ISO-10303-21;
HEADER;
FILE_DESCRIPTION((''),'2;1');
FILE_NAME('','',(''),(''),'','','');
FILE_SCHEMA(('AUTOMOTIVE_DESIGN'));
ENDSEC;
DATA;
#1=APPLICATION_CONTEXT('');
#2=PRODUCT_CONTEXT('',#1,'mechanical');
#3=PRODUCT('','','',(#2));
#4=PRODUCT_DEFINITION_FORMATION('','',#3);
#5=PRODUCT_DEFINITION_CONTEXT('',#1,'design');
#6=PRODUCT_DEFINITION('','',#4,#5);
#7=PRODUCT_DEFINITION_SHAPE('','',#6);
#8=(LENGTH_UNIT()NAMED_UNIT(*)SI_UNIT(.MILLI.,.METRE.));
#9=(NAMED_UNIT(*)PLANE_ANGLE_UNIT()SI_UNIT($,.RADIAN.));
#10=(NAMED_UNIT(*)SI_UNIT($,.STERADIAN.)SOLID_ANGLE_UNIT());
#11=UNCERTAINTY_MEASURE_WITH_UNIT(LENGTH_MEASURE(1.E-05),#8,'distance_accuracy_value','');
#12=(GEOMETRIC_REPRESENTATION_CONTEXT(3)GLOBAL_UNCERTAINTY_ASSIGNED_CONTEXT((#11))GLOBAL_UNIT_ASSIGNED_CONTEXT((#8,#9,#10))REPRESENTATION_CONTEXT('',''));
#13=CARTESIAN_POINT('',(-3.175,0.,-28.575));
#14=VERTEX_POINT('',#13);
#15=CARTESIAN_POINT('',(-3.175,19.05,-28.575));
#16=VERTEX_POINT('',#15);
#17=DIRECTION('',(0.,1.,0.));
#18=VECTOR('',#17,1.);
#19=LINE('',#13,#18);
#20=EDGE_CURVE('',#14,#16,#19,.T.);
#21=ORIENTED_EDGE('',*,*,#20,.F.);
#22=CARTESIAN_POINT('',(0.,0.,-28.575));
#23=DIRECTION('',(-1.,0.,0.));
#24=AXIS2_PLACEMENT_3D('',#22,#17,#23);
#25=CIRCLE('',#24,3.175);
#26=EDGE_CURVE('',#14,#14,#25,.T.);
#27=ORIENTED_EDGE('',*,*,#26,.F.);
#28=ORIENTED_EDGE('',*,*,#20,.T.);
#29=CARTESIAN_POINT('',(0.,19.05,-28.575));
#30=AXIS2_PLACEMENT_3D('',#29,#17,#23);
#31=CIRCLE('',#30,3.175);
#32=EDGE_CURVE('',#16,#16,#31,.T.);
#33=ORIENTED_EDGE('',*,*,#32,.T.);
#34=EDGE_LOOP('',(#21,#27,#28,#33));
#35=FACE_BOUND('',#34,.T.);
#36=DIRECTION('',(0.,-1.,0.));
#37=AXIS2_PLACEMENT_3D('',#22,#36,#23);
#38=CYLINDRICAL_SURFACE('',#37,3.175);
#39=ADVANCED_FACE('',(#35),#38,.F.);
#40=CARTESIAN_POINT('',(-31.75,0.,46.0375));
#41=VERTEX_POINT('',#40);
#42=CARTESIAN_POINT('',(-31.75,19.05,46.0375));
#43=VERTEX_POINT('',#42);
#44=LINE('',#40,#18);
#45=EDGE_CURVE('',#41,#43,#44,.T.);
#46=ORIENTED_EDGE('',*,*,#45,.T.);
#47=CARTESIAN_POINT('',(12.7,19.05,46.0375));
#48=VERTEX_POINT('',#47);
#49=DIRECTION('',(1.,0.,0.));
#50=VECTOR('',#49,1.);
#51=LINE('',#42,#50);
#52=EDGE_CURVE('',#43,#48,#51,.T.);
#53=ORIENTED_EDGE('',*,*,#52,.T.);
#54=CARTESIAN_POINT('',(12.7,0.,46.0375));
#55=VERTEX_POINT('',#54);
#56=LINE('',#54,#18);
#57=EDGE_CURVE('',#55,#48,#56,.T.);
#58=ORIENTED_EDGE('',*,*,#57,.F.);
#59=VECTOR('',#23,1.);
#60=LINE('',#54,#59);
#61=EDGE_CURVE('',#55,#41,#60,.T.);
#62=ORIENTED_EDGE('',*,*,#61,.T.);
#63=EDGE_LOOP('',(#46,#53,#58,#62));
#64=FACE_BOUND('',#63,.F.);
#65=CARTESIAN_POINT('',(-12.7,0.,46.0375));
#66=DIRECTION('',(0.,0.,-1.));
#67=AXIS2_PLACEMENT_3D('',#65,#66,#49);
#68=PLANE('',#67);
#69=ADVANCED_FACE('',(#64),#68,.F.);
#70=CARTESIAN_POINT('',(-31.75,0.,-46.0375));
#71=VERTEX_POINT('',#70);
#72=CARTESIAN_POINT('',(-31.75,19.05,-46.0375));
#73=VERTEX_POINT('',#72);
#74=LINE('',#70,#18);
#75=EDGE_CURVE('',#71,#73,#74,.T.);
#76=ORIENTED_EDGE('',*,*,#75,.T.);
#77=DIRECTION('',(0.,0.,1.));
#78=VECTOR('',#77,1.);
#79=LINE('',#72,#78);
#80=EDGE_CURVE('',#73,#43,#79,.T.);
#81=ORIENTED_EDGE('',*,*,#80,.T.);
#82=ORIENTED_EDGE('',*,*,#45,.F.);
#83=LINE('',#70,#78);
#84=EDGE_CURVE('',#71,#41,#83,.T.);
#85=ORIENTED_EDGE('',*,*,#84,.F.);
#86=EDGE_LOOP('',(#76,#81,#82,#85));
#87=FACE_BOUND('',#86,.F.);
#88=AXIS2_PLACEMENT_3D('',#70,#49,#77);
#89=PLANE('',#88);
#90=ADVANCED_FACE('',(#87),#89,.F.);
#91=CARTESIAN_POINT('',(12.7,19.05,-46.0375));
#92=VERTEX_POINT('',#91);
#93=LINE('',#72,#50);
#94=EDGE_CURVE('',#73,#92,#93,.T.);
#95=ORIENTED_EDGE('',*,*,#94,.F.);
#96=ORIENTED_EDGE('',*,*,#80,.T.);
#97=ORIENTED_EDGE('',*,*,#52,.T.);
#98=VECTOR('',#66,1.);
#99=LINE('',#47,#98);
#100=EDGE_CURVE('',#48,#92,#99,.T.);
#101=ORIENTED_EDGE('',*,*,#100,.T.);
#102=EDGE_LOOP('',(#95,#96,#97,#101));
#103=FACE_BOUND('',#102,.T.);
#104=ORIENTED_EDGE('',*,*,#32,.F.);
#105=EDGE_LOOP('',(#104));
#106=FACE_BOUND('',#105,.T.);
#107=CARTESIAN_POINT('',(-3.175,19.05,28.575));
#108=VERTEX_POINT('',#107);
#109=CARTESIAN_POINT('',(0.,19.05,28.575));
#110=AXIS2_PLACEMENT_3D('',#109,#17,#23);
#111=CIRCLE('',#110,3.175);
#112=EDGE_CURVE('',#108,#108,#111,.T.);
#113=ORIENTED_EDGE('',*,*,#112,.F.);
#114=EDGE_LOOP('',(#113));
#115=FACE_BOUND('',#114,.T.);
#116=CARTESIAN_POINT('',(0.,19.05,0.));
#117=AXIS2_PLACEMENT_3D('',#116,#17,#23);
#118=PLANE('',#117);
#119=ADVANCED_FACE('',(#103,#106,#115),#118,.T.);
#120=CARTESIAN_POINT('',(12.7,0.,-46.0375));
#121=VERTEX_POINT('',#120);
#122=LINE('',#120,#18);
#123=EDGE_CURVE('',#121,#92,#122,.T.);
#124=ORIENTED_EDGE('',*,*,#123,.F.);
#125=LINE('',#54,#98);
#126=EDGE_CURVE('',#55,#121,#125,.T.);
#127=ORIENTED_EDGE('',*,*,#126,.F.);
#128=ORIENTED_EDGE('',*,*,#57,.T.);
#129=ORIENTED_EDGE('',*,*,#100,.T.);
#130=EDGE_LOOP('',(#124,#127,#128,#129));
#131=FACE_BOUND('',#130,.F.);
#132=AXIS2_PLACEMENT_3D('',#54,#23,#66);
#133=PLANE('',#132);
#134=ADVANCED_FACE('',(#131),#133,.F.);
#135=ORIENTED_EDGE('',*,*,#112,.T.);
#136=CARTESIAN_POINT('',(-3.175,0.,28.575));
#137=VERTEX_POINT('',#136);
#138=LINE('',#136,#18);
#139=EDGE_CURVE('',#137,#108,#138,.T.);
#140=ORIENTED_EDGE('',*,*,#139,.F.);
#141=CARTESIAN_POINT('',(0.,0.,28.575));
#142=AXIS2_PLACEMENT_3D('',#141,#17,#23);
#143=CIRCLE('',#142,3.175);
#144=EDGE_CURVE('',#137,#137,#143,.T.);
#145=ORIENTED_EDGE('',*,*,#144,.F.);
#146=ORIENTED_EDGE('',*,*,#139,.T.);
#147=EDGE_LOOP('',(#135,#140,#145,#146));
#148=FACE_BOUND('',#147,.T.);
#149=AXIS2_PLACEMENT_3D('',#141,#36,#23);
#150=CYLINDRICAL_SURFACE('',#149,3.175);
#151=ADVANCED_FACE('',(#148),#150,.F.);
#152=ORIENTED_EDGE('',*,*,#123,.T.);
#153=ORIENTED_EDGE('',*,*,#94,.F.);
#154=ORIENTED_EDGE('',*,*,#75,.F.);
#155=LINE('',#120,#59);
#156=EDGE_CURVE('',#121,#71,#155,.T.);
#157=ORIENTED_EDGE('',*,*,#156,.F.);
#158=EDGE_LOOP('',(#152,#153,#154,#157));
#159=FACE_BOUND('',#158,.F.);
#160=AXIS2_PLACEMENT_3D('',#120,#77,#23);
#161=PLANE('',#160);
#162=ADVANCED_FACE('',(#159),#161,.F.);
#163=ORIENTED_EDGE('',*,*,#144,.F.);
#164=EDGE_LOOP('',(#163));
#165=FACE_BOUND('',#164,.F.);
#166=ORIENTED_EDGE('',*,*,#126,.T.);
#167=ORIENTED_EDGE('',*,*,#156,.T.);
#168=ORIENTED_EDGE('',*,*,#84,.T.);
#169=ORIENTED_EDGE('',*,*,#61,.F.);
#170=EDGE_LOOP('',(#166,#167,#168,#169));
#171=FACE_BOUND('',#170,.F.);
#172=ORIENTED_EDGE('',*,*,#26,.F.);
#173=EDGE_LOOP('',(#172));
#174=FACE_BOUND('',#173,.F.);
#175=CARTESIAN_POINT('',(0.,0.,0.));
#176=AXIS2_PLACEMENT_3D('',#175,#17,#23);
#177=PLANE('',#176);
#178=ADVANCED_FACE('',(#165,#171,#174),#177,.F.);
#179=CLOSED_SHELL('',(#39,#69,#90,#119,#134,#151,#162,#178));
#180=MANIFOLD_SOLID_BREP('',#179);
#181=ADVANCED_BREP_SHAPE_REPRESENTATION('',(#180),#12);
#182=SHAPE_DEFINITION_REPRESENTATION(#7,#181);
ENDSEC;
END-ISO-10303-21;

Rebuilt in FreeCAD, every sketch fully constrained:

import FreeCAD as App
import Part
import Sketcher

V = App.Vector
Q = App.Units.Quantity

doc = App.newDocument("Part")
params = doc.addObject("Spreadsheet::Sheet", "Params")
for row, (alias, value) in enumerate([
    ("sketch1_diameter", "0.25 in"),
    ("sketch1_height", "3.625 in"),
    ("sketch1_width", "1.75 in"),
    ("pad1_length", "0.75 in"),
], start=1):
    params.set(f"A{row}", alias)
    params.set(f"B{row}", "=" + value)
    params.setAlias(f"B{row}", alias)

body = doc.addObject("PartDesign::Body", "Body")

# Sketch on XZ plane
sketch1 = body.newObject("Sketcher::SketchObject", "Sketch")
sketch1.AttachmentSupport = (doc.getObject("XZ_Plane"), [""])
sketch1.MapMode = "FlatFace"
sketch1.addGeometry(Part.LineSegment(V(12.7, -46.0375, 0), V(-31.75, -46.0375, 0)), False)
sketch1.addGeometry(Part.LineSegment(V(-31.75, -46.0375, 0), V(-31.75, 46.0375, 0)), False)
sketch1.addGeometry(Part.LineSegment(V(-31.75, 46.0375, 0), V(12.7, 46.0375, 0)), False)
sketch1.addGeometry(Part.LineSegment(V(12.7, 46.0375, 0), V(12.7, -46.0375, 0)), False)
sketch1.addGeometry(Part.Circle(V(0, -28.575, 0), V(0, 0, 1), 3.175), False)
sketch1.addGeometry(Part.Circle(V(0, 28.575, 0), V(0, 0, 1), 3.175), False)
sketch1.addConstraint(Sketcher.Constraint("Coincident", 0, 2, 1, 1))
sketch1.addConstraint(Sketcher.Constraint("Coincident", 1, 2, 2, 1))
sketch1.addConstraint(Sketcher.Constraint("Coincident", 2, 2, 3, 1))
sketch1.addConstraint(Sketcher.Constraint("Coincident", 3, 2, 0, 1))
sketch1.addConstraint(Sketcher.Constraint("Horizontal", 0))
sketch1.addConstraint(Sketcher.Constraint("Vertical", 1))
sketch1.addConstraint(Sketcher.Constraint("Horizontal", 2))
sketch1.addConstraint(Sketcher.Constraint("Vertical", 3))
sketch1.addConstraint(Sketcher.Constraint("Equal", 4, 5))
sketch1.addConstraint(Sketcher.Constraint("Symmetric", 4, 3, 5, 3, -1, 1))
sketch1.addConstraint(Sketcher.Constraint("PointOnObject", 4, 3, -2))
sketch1.addConstraint(Sketcher.Constraint("Diameter", 4, Q("0.25 in")))
sketch1.addConstraint(Sketcher.Constraint("DistanceY", 1, 1, 1, 2, Q("3.625 in")))
sketch1.addConstraint(Sketcher.Constraint("DistanceY", 4, 3, -1, 1, Q("1.125 in")))
sketch1.addConstraint(Sketcher.Constraint("DistanceX", 0, 2, 0, 1, Q("1.75 in")))
sketch1.addConstraint(Sketcher.Constraint("DistanceX", -1, 1, 2, 2, Q("0.5 in")))
sketch1.addConstraint(Sketcher.Constraint("DistanceY", 0, 2, -1, 1, Q("1.8125 in")))
sketch1.setExpression("Constraints[11]", "Params.sketch1_diameter")
sketch1.setExpression("Constraints[12]", "Params.sketch1_height")
sketch1.setExpression("Constraints[14]", "Params.sketch1_width")
pad1 = body.newObject("PartDesign::Pad", "Pad")
pad1.Profile = sketch1
pad1.setExpression("Length", "Params.pad1_length")
pad1.Reversed = True

doc.recompute()
